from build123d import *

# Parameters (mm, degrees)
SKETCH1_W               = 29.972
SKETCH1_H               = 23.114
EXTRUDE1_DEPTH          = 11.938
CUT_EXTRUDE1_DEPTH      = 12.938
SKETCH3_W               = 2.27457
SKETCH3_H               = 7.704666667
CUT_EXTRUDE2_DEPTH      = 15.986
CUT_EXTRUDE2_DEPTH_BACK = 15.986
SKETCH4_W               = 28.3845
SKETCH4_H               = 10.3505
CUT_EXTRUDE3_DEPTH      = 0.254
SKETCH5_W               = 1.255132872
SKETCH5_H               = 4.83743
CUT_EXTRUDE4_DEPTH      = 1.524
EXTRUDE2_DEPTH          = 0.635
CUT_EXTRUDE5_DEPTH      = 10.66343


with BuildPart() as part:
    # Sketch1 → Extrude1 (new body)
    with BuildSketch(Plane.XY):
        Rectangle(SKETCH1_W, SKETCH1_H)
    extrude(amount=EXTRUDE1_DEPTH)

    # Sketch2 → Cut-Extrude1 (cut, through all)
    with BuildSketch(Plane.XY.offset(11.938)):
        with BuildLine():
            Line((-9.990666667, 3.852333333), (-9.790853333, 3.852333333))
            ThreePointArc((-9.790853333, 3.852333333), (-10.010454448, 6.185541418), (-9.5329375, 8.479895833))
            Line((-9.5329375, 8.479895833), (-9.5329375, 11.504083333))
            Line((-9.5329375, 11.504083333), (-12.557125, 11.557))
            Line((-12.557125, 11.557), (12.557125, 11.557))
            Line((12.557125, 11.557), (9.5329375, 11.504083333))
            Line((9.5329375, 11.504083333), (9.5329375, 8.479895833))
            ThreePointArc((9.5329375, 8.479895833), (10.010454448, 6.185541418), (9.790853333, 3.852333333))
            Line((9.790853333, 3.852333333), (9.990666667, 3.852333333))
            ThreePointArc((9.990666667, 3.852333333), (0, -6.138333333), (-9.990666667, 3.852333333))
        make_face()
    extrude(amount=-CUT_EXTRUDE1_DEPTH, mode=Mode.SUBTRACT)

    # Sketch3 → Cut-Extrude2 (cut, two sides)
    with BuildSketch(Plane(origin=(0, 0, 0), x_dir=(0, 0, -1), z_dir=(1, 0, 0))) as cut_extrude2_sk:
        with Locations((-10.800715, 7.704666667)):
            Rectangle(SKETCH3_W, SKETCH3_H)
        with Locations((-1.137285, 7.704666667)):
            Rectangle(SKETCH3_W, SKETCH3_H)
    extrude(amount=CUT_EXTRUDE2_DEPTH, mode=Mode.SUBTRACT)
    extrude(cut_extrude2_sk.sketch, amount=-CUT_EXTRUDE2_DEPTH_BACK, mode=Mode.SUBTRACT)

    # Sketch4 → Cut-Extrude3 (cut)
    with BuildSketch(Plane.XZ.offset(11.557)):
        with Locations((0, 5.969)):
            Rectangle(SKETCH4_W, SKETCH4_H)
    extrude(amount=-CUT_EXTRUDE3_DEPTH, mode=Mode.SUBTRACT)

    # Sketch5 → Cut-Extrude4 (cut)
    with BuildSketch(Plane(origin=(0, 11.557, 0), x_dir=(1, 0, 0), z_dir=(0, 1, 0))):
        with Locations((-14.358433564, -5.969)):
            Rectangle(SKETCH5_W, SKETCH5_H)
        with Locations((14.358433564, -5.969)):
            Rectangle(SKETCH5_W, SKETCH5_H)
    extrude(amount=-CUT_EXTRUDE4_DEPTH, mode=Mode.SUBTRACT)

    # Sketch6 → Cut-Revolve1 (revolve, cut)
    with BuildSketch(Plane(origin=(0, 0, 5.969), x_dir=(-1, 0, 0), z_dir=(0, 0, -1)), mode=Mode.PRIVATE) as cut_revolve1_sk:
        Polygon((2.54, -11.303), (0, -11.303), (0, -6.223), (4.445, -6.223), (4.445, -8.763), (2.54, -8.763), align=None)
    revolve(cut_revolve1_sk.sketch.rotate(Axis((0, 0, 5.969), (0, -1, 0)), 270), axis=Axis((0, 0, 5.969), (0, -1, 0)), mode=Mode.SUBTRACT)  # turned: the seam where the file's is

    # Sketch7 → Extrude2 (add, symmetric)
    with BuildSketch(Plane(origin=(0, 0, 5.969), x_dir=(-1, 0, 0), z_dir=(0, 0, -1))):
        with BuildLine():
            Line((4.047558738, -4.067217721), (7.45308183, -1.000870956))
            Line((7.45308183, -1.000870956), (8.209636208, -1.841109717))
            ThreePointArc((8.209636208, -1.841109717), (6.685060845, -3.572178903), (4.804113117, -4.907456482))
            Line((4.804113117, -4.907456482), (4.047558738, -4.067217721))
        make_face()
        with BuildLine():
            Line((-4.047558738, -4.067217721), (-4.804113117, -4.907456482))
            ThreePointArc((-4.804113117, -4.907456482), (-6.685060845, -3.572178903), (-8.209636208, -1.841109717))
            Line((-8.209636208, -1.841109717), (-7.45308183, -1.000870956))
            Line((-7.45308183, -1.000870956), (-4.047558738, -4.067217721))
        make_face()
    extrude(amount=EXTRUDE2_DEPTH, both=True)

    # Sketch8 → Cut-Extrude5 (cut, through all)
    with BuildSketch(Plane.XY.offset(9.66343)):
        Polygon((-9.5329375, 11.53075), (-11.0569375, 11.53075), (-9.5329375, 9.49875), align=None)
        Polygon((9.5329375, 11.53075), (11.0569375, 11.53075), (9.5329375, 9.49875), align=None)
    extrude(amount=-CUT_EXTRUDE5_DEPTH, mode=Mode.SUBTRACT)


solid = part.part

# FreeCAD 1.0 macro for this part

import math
import FreeCAD as App
import Part
import Sketcher
from FreeCAD import Vector
Q = App.Units.Quantity

doc = App.newDocument("Part")
params = doc.addObject("Spreadsheet::Sheet", "Params")
for row, (alias, value) in enumerate([
    ("sketch1_width", "1.18 in"),
    ("sketch1_height", "0.91 in"),
    ("pad1_length", "0.47 in"),
    ("pocket3_length", "0.01 in"),
    ("pocket4_length", "0.06 in"),
    ("sketch6_width", "0.1 in"),
    ("sketch6_width2", "0.075 in"),
    ("groove_angle", "360 deg"),
    ("pad2_length", "0.05 in"),
    ("sketch8_length", "0.1 in"),
    ("sketch8_width", "0.06 in"),
], start=1):
    params.set(f"A{row}", alias)
    params.set(f"B{row}", "=" + value)
    params.setAlias(f"B{row}", alias)

body = doc.addObject("PartDesign::Body", "Body")

# Sketch on XY plane
sketch1 = body.newObject("Sketcher::SketchObject", "Sketch")
sketch1.AttachmentSupport = (doc.getObject("XY_Plane"), [""])
sketch1.MapMode = "FlatFace"
sketch1.addGeometry([
    Part.LineSegment(Vector(-14.986, 11.557, 0), Vector(-14.986, -11.557, 0)),
    Part.LineSegment(Vector(-14.986, -11.557, 0), Vector(14.986, -11.557, 0)),
    Part.LineSegment(Vector(14.986, -11.557, 0), Vector(14.986, 11.557, 0)),
    Part.LineSegment(Vector(14.986, 11.557, 0), Vector(-14.986, 11.557, 0)),
], False)
sketch1.addConstraint([
    Sketcher.Constraint("Coincident", 0, 2, 1, 1),
    Sketcher.Constraint("Coincident", 1, 2, 2, 1),
    Sketcher.Constraint("Coincident", 2, 2, 3, 1),
    Sketcher.Constraint("Coincident", 3, 2, 0, 1),
    Sketcher.Constraint("Vertical", 0),
    Sketcher.Constraint("Horizontal", 1),
    Sketcher.Constraint("Vertical", 2),
    Sketcher.Constraint("Horizontal", 3),
    Sketcher.Constraint("Symmetric", 0, 2, 2, 2, -1, 1),
    Sketcher.Constraint("DistanceX", 1, 1, 1, 2, Q("1.18 in")),
    Sketcher.Constraint("DistanceY", 0, 2, 0, 1, Q("0.91 in")),
])
sketch1.setExpression("Constraints[9]", "Params.sketch1_width")
sketch1.setExpression("Constraints[10]", "Params.sketch1_height")
pad1 = body.newObject("PartDesign::Pad", "Pad")
pad1.Profile = sketch1
pad1.setExpression("Length", "Params.pad1_length")

# Sketch on XY plane
sketch2 = body.newObject("Sketcher::SketchObject", "Sketch001")
sketch2.AttachmentSupport = (doc.getObject("XY_Plane"), [""])
sketch2.MapMode = "FlatFace"
sketch2.AttachmentOffset = App.Placement(Vector(0, 0, 0.47 * 25.4), App.Rotation())
sketch2.addGeometry([
    Part.LineSegment(Vector(-9.790853, 3.852333, 0), Vector(-9.990667, 3.852333, 0)),  # 0
    Part.ArcOfCircle(Part.Circle(Vector(0, 3.852333, 0), Vector(0, 0, 1), 9.990667), math.radians(-180), math.radians(0)),  # 1
    Part.LineSegment(Vector(9.990667, 3.852333, 0), Vector(9.790853, 3.852333, 0)),  # 2
    Part.ArcOfCircle(Part.Circle(Vector(2.156581, 5.747808, 0), Vector(0, 0, 1), 7.866062), math.radians(-13.94372), math.radians(20.323846)),  # 3
    Part.LineSegment(Vector(9.532937, 8.479896, 0), Vector(9.532937, 11.504083, 0)),  # 4
    Part.LineSegment(Vector(9.532937, 11.504083, 0), Vector(12.557125, 11.557, 0)),  # 5
    Part.LineSegment(Vector(12.557125, 11.557, 0), Vector(-12.557125, 11.557, 0)),  # 6
    Part.LineSegment(Vector(-12.557125, 11.557, 0), Vector(-9.532937, 11.504083, 0)),  # 7
    Part.LineSegment(Vector(-9.532937, 11.504083, 0), Vector(-9.532937, 8.479896, 0)),  # 8
    Part.ArcOfCircle(Part.Circle(Vector(-2.156581, 5.747808, 0), Vector(0, 0, 1), 7.866062), math.radians(159.676154), math.radians(193.94372)),  # 9
], False)
sketch2.addConstraint([
    Sketcher.Constraint("Coincident", 0, 2, 1, 1),
    Sketcher.Constraint("Coincident", 1, 2, 2, 1),
    Sketcher.Constraint("Coincident", 2, 2, 3, 1),
    Sketcher.Constraint("Coincident", 3, 2, 4, 1),
    Sketcher.Constraint("Coincident", 4, 2, 5, 1),
    Sketcher.Constraint("Coincident", 5, 2, 6, 1),
    Sketcher.Constraint("Coincident", 6, 2, 7, 1),
    Sketcher.Constraint("Coincident", 7, 2, 8, 1),
    Sketcher.Constraint("Coincident", 8, 2, 9, 1),
    Sketcher.Constraint("Coincident", 9, 2, 0, 1),
    Sketcher.Constraint("Horizontal", 0),
    Sketcher.Constraint("Horizontal", 2),
    Sketcher.Constraint("Vertical", 4),
    Sketcher.Constraint("Horizontal", 6),
    Sketcher.Constraint("Vertical", 8),
    Sketcher.Constraint("Equal", 3, 9),
    Sketcher.Constraint("Symmetric", 3, 3, 9, 3, -2),
    Sketcher.Constraint("Symmetric", 0, 2, 1, 2, -2),
    Sketcher.Constraint("Symmetric", 4, 2, 7, 2, -2),
    Sketcher.Constraint("Horizontal", 1, 3, 0, 2),
    Sketcher.Constraint("Equal", 5, 7),
    Sketcher.Constraint("DistanceY", -1, 1, 5, 2, Q("0.455 in")),
    Sketcher.Constraint("Radius", 1, Q("9.990667 mm")),
    Sketcher.Constraint("Radius", 3, Q("7.866062 mm")),
    Sketcher.Constraint("DistanceX", 0, 2, 2, 2, Q("0.7788 in")),
    Sketcher.Constraint("DistanceX", 6, 2, 6, 1, Q("25.11425 mm")),
    Sketcher.Constraint("Distance", 5, Q("3.02465 mm")),
    Sketcher.Constraint("DistanceY", 4, 1, 4, 2, Q("3.024188 mm")),
    Sketcher.Constraint("DistanceX", -1, 1, 3, 3, Q("2.156581 mm")),
    Sketcher.Constraint("DistanceY", -1, 1, 3, 3, Q("5.747808 mm")),
])
pocket1 = body.newObject("PartDesign::Pocket", "Pocket")
pocket1.Profile = sketch2
pocket1.Type = "ThroughAll"

# Sketch on YZ plane
sketch3 = body.newObject("Sketcher::SketchObject", "Sketch002")
sketch3.AttachmentSupport = (doc.getObject("YZ_Plane"), [""])
sketch3.MapMode = "FlatFace"
sketch3.addGeometry([
    Part.LineSegment(Vector(11.557, 11.938, 0), Vector(3.852333, 11.938, 0)),  # 0
    Part.LineSegment(Vector(3.852333, 11.938, 0), Vector(3.852333, 9.66343, 0)),  # 1
    Part.LineSegment(Vector(3.852333, 9.66343, 0), Vector(11.557, 9.66343, 0)),  # 2
    Part.LineSegment(Vector(11.557, 9.66343, 0), Vector(11.557, 11.938, 0)),  # 3
    Part.LineSegment(Vector(11.557, 2.27457, 0), Vector(3.852333, 2.27457, 0)),  # 4
    Part.LineSegment(Vector(3.852333, 2.27457, 0), Vector(3.852333, 0, 0)),  # 5
    Part.LineSegment(Vector(3.852333, 0, 0), Vector(11.557, 0, 0)),  # 6
    Part.LineSegment(Vector(11.557, 0, 0), Vector(11.557, 2.27457, 0)),  # 7
], False)
sketch3.addConstraint([
    Sketcher.Constraint("Coincident", 0, 2, 1, 1),
    Sketcher.Constraint("Coincident", 1, 2, 2, 1),
    Sketcher.Constraint("Coincident", 2, 2, 3, 1),
    Sketcher.Constraint("Coincident", 3, 2, 0, 1),
    Sketcher.Constraint("Coincident", 4, 2, 5, 1),
    Sketcher.Constraint("Coincident", 5, 2, 6, 1),
    Sketcher.Constraint("Coincident", 6, 2, 7, 1),
    Sketcher.Constraint("Coincident", 7, 2, 4, 1),
    Sketcher.Constraint("Horizontal", 0),
    Sketcher.Constraint("Vertical", 1),
    Sketcher.Constraint("Horizontal", 2),
    Sketcher.Constraint("Vertical", 3),
    Sketcher.Constraint("Horizontal", 4),
    Sketcher.Constraint("Vertical", 5),
    Sketcher.Constraint("Horizontal", 6),
    Sketcher.Constraint("Vertical", 7),
    Sketcher.Constraint("PointOnObject", 5, 2, -1),
    Sketcher.Constraint("Vertical", 1, 2, 4, 2),
    Sketcher.Constraint("Vertical", 3, 2, 6, 2),
    Sketcher.Constraint("Equal", 3, 5),
    Sketcher.Constraint("DistanceY", -1, 1, 0, 2, Q("0.47 in")),
    Sketcher.Constraint("DistanceX", -1, 1, 2, 2, Q("0.455 in")),
    Sketcher.Constraint("DistanceY", 4, 2, 1, 2, Q("0.2909 in")),
    Sketcher.Constraint("DistanceX", 0, 2, 0, 1, Q("7.704667 mm")),
])
pocket2 = body.newObject("PartDesign::Pocket", "Pocket001")
pocket2.Profile = sketch3
pocket2.Type = "ThroughAll"
pocket2.Midplane = True

# Sketch on XZ plane
sketch4 = body.newObject("Sketcher::SketchObject", "Sketch003")
sketch4.AttachmentSupport = (doc.getObject("XZ_Plane"), [""])
sketch4.MapMode = "FlatFace"
sketch4.AttachmentOffset = App.Placement(Vector(0, 0, 0.455 * 25.4), App.Rotation())
sketch4.addGeometry([
    Part.LineSegment(Vector(-14.19225, 11.14425, 0), Vector(-14.19225, 0.79375, 0)),
    Part.LineSegment(Vector(-14.19225, 0.79375, 0), Vector(14.19225, 0.79375, 0)),
    Part.LineSegment(Vector(14.19225, 0.79375, 0), Vector(14.19225, 11.14425, 0)),
    Part.LineSegment(Vector(14.19225, 11.14425, 0), Vector(-14.19225, 11.14425, 0)),
], False)
sketch4.addConstraint([
    Sketcher.Constraint("Coincident", 0, 2, 1, 1),
    Sketcher.Constraint("Coincident", 1, 2, 2, 1),
    Sketcher.Constraint("Coincident", 2, 2, 3, 1),
    Sketcher.Constraint("Coincident", 3, 2, 0, 1),
    Sketcher.Constraint("Vertical", 0),
    Sketcher.Constraint("Horizontal", 1),
    Sketcher.Constraint("Vertical", 2),
    Sketcher.Constraint("Horizontal", 3),
    Sketcher.Constraint("DistanceX", 1, 1, 1, 2, Q("1.1175 in")),
    Sketcher.Constraint("DistanceY", 0, 2, 0, 1, Q("0.4075 in")),
    Sketcher.Constraint("DistanceY", -1, 1, 0, 2, Q("0.03125 in")),
    Sketcher.Constraint("DistanceX", 0, 2, -1, 1, Q("14.19225 mm")),
])
pocket3 = body.newObject("PartDesign::Pocket", "Pocket002")
pocket3.Profile = sketch4
pocket3.setExpression("Length", "Params.pocket3_length")

# Sketch on XZ plane
sketch5 = body.newObject("Sketcher::SketchObject", "Sketch004")
sketch5.AttachmentSupport = (doc.getObject("XZ_Plane"), [""])
sketch5.MapMode = "FlatFace"
sketch5.AttachmentOffset = App.Placement(Vector(0, 0, -0.455 * 25.4), App.Rotation())
sketch5.addGeometry([
    Part.LineSegment(Vector(-14.986, 3.550285, 0), Vector(-14.986, 8.387715, 0)),  # 0
    Part.LineSegment(Vector(-14.986, 8.387715, 0), Vector(-13.730867, 8.387715, 0)),  # 1
    Part.LineSegment(Vector(-13.730867, 8.387715, 0), Vector(-13.730867, 3.550285, 0)),  # 2
    Part.LineSegment(Vector(-13.730867, 3.550285, 0), Vector(-14.986, 3.550285, 0)),  # 3
    Part.LineSegment(Vector(13.730867, 3.550285, 0), Vector(13.730867, 8.387715, 0)),  # 4
    Part.LineSegment(Vector(13.730867, 8.387715, 0), Vector(14.986, 8.387715, 0)),  # 5
    Part.LineSegment(Vector(14.986, 8.387715, 0), Vector(14.986, 3.550285, 0)),  # 6
    Part.LineSegment(Vector(14.986, 3.550285, 0), Vector(13.730867, 3.550285, 0)),  # 7
], False)
sketch5.addConstraint([
    Sketcher.Constraint("Coincident", 0, 2, 1, 1),
    Sketcher.Constraint("Coincident", 1, 2, 2, 1),
    Sketcher.Constraint("Coincident", 2, 2, 3, 1),
    Sketcher.Constraint("Coincident", 3, 2, 0, 1),
    Sketcher.Constraint("Coincident", 4, 2, 5, 1),
    Sketcher.Constraint("Coincident", 5, 2, 6, 1),
    Sketcher.Constraint("Coincident", 6, 2, 7, 1),
    Sketcher.Constraint("Coincident", 7, 2, 4, 1),
    Sketcher.Constraint("Vertical", 0),
    Sketcher.Constraint("Horizontal", 1),
    Sketcher.Constraint("Vertical", 2),
    Sketcher.Constraint("Horizontal", 3),
    Sketcher.Constraint("Vertical", 4),
    Sketcher.Constraint("Horizontal", 5),
    Sketcher.Constraint("Vertical", 6),
    Sketcher.Constraint("Horizontal", 7),
    Sketcher.Constraint("Symmetric", 1, 2, 4, 2, -2),
    Sketcher.Constraint("Symmetric", 3, 2, 6, 2, -2),
    Sketcher.Constraint("DistanceX", 0, 2, -1, 1, Q("0.59 in")),
    Sketcher.Constraint("DistanceY", 0, 1, 0, 2, Q("4.83743 mm")),
    Sketcher.Constraint("DistanceX", 1, 1, 1, 2, Q("1.255133 mm")),
    Sketcher.Constraint("DistanceY", -1, 1, 0, 2, Q("8.387715 mm")),
])
pocket4 = body.newObject("PartDesign::Pocket", "Pocket003")
pocket4.Profile = sketch5
pocket4.setExpression("Length", "Params.pocket4_length")
pocket4.Reversed = True

# Sketch on XY plane
sketch6 = body.newObject("Sketcher::SketchObject", "Sketch005")
sketch6.AttachmentSupport = (doc.getObject("XY_Plane"), [""])
sketch6.MapMode = "FlatFace"
sketch6.AttachmentOffset = App.Placement(Vector(0, 0, 0.235 * 25.4), App.Rotation())
sketch6.addGeometry([
    Part.LineSegment(Vector(0, -11.303, 0), Vector(-2.54, -11.303, 0)),  # 0
    Part.LineSegment(Vector(-2.54, -11.303, 0), Vector(-2.54, -8.763, 0)),  # 1
    Part.LineSegment(Vector(-2.54, -8.763, 0), Vector(-4.445, -8.763, 0)),  # 2
    Part.LineSegment(Vector(-4.445, -8.763, 0), Vector(-4.445, -6.223, 0)),  # 3
    Part.LineSegment(Vector(-4.445, -6.223, 0), Vector(0, -6.223, 0)),  # 4
    Part.LineSegment(Vector(0, -6.223, 0), Vector(0, -11.303, 0)),  # 5
], False)
sketch6.addConstraint([
    Sketcher.Constraint("Coincident", 0, 2, 1, 1),
    Sketcher.Constraint("Coincident", 1, 2, 2, 1),
    Sketcher.Constraint("Coincident", 2, 2, 3, 1),
    Sketcher.Constraint("Coincident", 3, 2, 4, 1),
    Sketcher.Constraint("Coincident", 4, 2, 5, 1),
    Sketcher.Constraint("Coincident", 5, 2, 0, 1),
    Sketcher.Constraint("Horizontal", 0),
    Sketcher.Constraint("Vertical", 1),
    Sketcher.Constraint("Horizontal", 2),
    Sketcher.Constraint("Vertical", 3),
    Sketcher.Constraint("Horizontal", 4),
    Sketcher.Constraint("Vertical", 5),
    Sketcher.Constraint("PointOnObject", 4, 2, -2),
    Sketcher.Constraint("Equal", 0, 1),
    Sketcher.Constraint("Equal", 1, 3),
    Sketcher.Constraint("DistanceX", 0, 2, 0, 1, Q("0.1 in")),
    Sketcher.Constraint("DistanceX", 2, 2, 2, 1, Q("0.075 in")),
    Sketcher.Constraint("DistanceY", 0, 2, -1, 1, Q("0.445 in")),
])
sketch6.setExpression("Constraints[15]", "Params.sketch6_width")
sketch6.setExpression("Constraints[16]", "Params.sketch6_width2")
groove = body.newObject("PartDesign::Groove", "Groove")
groove.Profile = sketch6
groove.ReferenceAxis = (sketch6, ["V_Axis"])
groove.setExpression("Angle", "Params.groove_angle")

# Sketch on XY plane
sketch7 = body.newObject("Sketcher::SketchObject", "Sketch006")
sketch7.AttachmentSupport = (doc.getObject("XY_Plane"), [""])
sketch7.MapMode = "FlatFace"
sketch7.AttachmentOffset = App.Placement(Vector(0, 0, 0.235 * 25.4), App.Rotation())
sketch7.addGeometry([
    Part.LineSegment(Vector(-7.453082, -1.000871, 0), Vector(-4.047559, -4.067218, 0)),  # 0
    Part.LineSegment(Vector(-4.047559, -4.067218, 0), Vector(-4.804113, -4.907456, 0)),  # 1
    Part.ArcOfCircle(Part.Circle(Vector(0, 3.852333, 0), Vector(0, 0, 1), 9.990667), math.radians(-145.258408), math.radians(-118.741593)),  # 2
    Part.LineSegment(Vector(-8.209636, -1.84111, 0), Vector(-7.453082, -1.000871, 0)),  # 3
    Part.LineSegment(Vector(4.804113, -4.907456, 0), Vector(4.047559, -4.067218, 0)),  # 4
    Part.LineSegment(Vector(4.047559, -4.067218, 0), Vector(7.453082, -1.000871, 0)),  # 5
    Part.LineSegment(Vector(7.453082, -1.000871, 0), Vector(8.209636, -1.84111, 0)),  # 6
    Part.ArcOfCircle(Part.Circle(Vector(0, 3.852333, 0), Vector(0, 0, 1), 9.990667), math.radians(-61.258407), math.radians(-34.741592)),  # 7
], False)
sketch7.addConstraint([
    Sketcher.Constraint("Coincident", 0, 2, 1, 1),
    Sketcher.Constraint("Coincident", 1, 2, 2, 2),
    Sketcher.Constraint("Coincident", 2, 1, 3, 1),
    Sketcher.Constraint("Coincident", 3, 2, 0, 1),
    Sketcher.Constraint("Coincident", 4, 2, 5, 1),
    Sketcher.Constraint("Coincident", 5, 2, 6, 1),
    Sketcher.Constraint("Coincident", 6, 2, 7, 2),
    Sketcher.Constraint("Coincident", 7, 1, 4, 1),
    Sketcher.Constraint("Coincident", 7, 3, 2, 3),
    Sketcher.Constraint("Equal", 2, 7),
    Sketcher.Constraint("Symmetric", 0, 2, 4, 2, -2),
    Sketcher.Constraint("Symmetric", 3, 2, 5, 2, -2),
    Sketcher.Constraint("Symmetric", 2, 1, 6, 2, -2),
    Sketcher.Constraint("Perpendicular", 0, 1),
    Sketcher.Constraint("Parallel", 1, 3),
    Sketcher.Constraint("Perpendicular", 4, 5),
    Sketcher.Constraint("Equal", 1, 3),
    Sketcher.Constraint("Angle", 0, Q("-42 deg")),
    Sketcher.Constraint("Radius", 2, Q("9.990667 mm")),
    Sketcher.Constraint("DistanceX", 0, 2, -1, 1, Q("4.047559 mm")),
    Sketcher.Constraint("DistanceY", 2, 1, -1, 1, Q("1.84111 mm")),
    Sketcher.Constraint("DistanceX", 3, 2, -1, 1, Q("7.453082 mm")),
])
pad2 = body.newObject("PartDesign::Pad", "Pad001")
pad2.Profile = sketch7
pad2.setExpression("Length", "Params.pad2_length")
pad2.Midplane = True

# Sketch on XY plane
sketch8 = body.newObject("Sketcher::SketchObject", "Sketch007")
sketch8.AttachmentSupport = (doc.getObject("XY_Plane"), [""])
sketch8.MapMode = "FlatFace"
sketch8.AttachmentOffset = App.Placement(Vector(0, 0, 9.66343), App.Rotation())
sketch8.addGeometry([
    Part.LineSegment(Vector(-9.532937, 11.53075, 0), Vector(-11.056938, 11.53075, 0)),  # 0
    Part.LineSegment(Vector(-11.056938, 11.53075, 0), Vector(-9.532937, 9.49875, 0)),  # 1
    Part.LineSegment(Vector(-9.532937, 9.49875, 0), Vector(-9.532937, 11.53075, 0)),  # 2
    Part.LineSegment(Vector(11.056938, 11.53075, 0), Vector(9.532937, 11.53075, 0)),  # 3
    Part.LineSegment(Vector(9.532937, 11.53075, 0), Vector(9.532937, 9.49875, 0)),  # 4
    Part.LineSegment(Vector(9.532937, 9.49875, 0), Vector(11.056938, 11.53075, 0)),  # 5
], False)
sketch8.addConstraint([
    Sketcher.Constraint("Coincident", 0, 2, 1, 1),
    Sketcher.Constraint("Coincident", 1, 2, 2, 1),
    Sketcher.Constraint("Coincident", 2, 2, 0, 1),
    Sketcher.Constraint("Coincident", 3, 2, 4, 1),
    Sketcher.Constraint("Coincident", 4, 2, 5, 1),
    Sketcher.Constraint("Coincident", 5, 2, 3, 1),
    Sketcher.Constraint("Horizontal", 0),
    Sketcher.Constraint("Vertical", 2),
    Sketcher.Constraint("Horizontal", 3),
    Sketcher.Constraint("Vertical", 4),
    Sketcher.Constraint("Symmetric", 2, 2, 3, 2, -2),
    Sketcher.Constraint("Horizontal", 1, 2, 4, 2),
    Sketcher.Constraint("Equal", 0, 3),
    Sketcher.Constraint("Distance", 1, Q("0.1 in")),
    Sketcher.Constraint("DistanceX", 0, 2, 0, 1, Q("0.06 in")),
    Sketcher.Constraint("DistanceY", -1, 1, 0, 2, Q("11.53075 mm")),
    Sketcher.Constraint("DistanceX", 0, 2, -1, 1, Q("11.056938 mm")),
])
sketch8.setExpression("Constraints[13]", "Params.sketch8_length")
sketch8.setExpression("Constraints[14]", "Params.sketch8_width")
pocket5 = body.newObject("PartDesign::Pocket", "Pocket004")
pocket5.Profile = sketch8
pocket5.Type = "ThroughAll"

doc.recompute()
